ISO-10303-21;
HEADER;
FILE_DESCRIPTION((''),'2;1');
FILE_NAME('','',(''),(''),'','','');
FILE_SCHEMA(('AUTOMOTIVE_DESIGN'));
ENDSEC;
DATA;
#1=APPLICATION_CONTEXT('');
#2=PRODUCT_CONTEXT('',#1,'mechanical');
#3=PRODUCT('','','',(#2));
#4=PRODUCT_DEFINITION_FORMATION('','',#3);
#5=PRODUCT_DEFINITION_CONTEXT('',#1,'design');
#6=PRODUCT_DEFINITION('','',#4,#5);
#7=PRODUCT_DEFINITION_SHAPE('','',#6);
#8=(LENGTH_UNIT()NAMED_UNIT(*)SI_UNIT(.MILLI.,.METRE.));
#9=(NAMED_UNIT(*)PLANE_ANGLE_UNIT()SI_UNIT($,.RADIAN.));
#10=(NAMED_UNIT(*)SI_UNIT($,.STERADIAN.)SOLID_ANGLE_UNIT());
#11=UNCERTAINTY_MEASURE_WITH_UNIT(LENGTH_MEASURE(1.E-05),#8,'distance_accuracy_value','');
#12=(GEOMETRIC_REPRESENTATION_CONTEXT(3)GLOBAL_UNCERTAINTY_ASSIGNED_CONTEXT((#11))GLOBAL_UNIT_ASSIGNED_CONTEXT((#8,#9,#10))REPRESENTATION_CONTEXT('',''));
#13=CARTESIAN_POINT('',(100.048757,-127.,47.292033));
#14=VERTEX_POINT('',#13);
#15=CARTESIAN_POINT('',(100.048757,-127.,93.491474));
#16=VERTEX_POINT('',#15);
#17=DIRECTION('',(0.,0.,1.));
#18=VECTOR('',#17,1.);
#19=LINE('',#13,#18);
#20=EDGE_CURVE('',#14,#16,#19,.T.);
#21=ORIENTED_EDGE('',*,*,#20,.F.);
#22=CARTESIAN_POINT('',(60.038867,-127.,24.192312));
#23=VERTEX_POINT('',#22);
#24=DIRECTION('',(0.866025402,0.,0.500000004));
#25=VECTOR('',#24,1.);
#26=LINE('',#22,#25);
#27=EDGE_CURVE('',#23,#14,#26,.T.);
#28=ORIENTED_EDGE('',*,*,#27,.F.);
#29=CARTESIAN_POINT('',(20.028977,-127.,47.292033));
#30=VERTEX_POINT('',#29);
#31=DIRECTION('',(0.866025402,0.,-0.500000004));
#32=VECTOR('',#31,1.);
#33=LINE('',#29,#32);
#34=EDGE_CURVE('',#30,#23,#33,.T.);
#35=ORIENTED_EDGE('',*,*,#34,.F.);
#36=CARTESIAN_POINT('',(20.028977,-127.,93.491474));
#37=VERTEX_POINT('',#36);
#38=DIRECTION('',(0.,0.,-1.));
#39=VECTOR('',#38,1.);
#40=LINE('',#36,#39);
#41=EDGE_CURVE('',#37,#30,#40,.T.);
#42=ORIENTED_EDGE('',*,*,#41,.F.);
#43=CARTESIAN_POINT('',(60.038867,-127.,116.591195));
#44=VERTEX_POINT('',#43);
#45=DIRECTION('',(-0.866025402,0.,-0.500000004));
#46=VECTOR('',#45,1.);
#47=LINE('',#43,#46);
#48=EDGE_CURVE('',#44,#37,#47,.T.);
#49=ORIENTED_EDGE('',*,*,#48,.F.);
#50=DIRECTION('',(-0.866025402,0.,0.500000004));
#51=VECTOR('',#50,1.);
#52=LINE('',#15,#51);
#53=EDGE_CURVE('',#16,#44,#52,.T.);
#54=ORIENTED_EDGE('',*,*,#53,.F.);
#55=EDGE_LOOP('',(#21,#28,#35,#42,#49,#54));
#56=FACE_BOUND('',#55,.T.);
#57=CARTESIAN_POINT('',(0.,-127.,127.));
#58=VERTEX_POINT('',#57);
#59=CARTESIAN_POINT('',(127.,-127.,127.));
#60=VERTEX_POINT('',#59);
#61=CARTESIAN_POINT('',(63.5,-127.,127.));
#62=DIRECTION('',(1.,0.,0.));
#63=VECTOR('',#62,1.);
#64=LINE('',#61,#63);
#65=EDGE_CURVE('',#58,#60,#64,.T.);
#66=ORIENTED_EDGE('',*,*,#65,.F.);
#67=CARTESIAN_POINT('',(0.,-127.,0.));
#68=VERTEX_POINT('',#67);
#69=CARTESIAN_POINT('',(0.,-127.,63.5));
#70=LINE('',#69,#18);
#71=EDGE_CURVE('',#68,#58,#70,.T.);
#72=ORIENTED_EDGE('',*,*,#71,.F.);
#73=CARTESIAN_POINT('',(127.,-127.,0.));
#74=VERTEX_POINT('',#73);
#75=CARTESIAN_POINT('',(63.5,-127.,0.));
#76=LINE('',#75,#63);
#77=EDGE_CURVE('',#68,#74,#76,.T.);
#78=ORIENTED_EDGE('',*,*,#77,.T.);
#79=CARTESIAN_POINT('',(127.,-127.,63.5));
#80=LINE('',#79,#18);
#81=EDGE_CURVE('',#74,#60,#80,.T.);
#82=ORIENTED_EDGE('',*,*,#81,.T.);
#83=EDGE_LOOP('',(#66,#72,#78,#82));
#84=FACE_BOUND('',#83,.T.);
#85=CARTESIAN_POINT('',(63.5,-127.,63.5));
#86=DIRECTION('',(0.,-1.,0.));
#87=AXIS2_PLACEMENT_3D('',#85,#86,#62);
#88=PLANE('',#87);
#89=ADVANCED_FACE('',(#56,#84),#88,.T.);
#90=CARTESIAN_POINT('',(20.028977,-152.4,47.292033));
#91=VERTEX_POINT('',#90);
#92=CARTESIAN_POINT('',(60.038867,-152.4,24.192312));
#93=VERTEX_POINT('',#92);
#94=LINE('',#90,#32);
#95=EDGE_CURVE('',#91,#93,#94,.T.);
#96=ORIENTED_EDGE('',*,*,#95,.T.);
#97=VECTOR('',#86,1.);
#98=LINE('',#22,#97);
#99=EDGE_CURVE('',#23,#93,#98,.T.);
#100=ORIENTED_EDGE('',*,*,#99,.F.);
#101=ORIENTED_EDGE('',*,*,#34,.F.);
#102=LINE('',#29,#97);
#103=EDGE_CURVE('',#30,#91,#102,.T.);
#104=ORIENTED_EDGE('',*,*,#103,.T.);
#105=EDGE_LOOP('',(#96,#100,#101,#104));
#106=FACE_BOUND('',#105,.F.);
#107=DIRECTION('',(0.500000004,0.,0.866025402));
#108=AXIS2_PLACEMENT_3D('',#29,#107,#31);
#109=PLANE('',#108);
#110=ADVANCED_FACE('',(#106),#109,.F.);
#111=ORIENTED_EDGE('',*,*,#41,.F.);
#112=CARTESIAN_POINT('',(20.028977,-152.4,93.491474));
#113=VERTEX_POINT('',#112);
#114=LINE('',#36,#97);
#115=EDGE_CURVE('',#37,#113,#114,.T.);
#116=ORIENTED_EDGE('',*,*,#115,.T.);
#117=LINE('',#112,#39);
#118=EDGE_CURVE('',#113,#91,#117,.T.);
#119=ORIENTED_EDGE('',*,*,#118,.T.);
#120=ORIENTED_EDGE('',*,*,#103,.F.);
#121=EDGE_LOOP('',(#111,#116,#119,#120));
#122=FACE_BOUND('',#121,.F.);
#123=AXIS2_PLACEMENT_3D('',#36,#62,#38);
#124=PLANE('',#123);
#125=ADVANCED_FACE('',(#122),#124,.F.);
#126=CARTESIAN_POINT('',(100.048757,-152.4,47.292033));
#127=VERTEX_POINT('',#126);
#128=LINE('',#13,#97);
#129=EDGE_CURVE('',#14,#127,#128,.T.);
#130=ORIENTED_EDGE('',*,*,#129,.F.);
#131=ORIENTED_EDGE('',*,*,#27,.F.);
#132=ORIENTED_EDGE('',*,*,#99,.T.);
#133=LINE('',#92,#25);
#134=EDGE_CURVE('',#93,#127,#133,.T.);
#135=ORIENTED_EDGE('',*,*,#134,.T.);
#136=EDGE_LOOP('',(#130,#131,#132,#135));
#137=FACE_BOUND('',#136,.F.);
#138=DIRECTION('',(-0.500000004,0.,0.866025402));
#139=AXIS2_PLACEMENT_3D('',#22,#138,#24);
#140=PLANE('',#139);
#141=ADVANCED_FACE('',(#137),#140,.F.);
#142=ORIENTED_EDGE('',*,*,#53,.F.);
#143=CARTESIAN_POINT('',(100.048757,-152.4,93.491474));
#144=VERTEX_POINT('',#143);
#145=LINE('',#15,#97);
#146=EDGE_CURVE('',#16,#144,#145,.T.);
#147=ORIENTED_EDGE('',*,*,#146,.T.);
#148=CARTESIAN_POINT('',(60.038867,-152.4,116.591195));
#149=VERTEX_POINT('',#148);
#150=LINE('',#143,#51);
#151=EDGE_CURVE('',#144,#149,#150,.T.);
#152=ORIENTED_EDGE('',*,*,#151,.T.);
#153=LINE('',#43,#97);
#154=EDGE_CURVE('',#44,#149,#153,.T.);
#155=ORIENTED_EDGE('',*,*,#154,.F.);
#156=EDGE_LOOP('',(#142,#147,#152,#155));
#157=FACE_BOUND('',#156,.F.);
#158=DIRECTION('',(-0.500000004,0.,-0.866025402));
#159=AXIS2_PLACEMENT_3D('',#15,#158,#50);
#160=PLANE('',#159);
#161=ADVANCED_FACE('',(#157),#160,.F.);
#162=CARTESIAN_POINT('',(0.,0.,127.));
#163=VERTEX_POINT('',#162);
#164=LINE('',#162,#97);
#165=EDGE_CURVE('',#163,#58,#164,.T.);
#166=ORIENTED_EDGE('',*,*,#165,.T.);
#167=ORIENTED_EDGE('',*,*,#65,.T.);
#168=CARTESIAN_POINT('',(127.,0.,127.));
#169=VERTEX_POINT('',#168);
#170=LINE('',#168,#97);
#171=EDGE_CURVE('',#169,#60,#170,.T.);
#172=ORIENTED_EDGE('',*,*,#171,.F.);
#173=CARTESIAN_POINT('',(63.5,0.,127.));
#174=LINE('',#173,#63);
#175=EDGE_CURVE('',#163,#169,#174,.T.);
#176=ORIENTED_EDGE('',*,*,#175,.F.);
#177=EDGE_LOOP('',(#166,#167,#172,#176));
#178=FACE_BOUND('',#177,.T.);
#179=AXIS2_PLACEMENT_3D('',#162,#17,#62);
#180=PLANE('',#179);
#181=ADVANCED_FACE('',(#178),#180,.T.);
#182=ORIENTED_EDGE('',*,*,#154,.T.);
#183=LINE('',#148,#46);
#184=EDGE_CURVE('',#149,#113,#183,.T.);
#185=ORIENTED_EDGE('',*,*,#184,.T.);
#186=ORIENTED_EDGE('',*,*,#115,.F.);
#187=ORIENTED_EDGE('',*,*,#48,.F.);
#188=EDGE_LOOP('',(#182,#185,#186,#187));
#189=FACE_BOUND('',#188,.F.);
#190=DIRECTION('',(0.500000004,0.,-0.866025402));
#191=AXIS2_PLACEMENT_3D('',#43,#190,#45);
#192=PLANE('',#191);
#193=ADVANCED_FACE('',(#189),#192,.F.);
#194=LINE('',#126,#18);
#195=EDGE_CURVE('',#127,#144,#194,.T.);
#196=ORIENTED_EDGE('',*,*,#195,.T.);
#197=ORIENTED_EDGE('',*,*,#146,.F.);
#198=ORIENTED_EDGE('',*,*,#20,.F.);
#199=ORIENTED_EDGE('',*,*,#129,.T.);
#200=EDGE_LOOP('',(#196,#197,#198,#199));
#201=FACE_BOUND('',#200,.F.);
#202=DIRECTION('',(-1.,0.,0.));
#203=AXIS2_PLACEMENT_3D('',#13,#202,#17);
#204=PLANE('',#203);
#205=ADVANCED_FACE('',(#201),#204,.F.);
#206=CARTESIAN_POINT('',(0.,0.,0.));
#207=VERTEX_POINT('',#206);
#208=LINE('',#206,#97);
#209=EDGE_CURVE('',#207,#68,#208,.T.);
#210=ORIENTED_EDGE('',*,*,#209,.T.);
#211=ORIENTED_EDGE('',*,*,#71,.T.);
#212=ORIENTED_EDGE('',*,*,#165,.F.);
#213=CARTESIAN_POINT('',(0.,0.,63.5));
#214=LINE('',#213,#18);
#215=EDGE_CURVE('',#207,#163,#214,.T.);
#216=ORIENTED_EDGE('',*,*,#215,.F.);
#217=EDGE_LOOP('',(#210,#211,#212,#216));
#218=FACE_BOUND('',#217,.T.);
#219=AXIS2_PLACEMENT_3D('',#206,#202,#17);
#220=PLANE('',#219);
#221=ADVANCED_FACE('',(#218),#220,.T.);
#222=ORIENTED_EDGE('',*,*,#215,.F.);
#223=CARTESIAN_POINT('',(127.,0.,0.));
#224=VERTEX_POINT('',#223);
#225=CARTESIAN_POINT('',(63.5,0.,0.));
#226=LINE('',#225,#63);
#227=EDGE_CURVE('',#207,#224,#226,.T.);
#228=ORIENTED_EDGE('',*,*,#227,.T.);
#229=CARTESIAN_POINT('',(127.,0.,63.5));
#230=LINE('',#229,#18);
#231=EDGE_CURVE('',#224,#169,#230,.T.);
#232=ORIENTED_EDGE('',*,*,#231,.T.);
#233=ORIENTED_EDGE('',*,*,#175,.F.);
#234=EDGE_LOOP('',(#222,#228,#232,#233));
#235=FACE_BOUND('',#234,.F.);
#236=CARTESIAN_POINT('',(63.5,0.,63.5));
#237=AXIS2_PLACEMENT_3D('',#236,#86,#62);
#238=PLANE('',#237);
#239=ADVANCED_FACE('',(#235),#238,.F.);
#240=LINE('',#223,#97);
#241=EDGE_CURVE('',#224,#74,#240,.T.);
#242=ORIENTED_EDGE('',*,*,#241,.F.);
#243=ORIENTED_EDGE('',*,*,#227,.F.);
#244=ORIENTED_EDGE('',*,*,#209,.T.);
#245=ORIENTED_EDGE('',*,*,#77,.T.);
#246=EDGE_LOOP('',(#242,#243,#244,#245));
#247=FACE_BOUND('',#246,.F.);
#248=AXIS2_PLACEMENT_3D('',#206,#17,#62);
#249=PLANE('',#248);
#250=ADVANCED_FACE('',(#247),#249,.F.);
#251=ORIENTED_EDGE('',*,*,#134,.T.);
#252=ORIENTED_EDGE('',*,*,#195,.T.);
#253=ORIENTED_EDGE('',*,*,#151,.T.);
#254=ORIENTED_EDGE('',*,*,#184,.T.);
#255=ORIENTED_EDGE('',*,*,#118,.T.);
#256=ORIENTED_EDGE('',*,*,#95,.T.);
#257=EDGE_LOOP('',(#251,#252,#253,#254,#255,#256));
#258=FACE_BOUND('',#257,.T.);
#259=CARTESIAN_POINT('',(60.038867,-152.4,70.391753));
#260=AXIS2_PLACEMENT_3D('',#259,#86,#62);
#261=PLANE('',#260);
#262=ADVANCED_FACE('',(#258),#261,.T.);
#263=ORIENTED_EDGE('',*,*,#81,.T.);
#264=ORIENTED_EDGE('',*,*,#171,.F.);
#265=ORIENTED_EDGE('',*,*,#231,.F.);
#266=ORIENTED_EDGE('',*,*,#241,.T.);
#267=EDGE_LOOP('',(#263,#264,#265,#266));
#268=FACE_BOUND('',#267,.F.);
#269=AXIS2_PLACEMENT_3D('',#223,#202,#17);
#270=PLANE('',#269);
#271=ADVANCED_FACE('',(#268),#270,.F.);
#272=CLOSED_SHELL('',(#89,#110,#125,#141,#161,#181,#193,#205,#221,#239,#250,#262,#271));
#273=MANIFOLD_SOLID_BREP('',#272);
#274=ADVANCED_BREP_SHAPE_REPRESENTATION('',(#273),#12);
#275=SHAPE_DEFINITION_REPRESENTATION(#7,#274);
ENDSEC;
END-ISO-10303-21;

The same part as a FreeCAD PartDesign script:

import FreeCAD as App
import Part
import Sketcher

V = App.Vector
Q = App.Units.Quantity

doc = App.newDocument("Part")
body = doc.addObject("PartDesign::Body", "Body")

# Sketch on XZ plane
sketch1 = body.newObject("Sketcher::SketchObject", "Sketch")
sketch1.AttachmentSupport = (doc.getObject("XZ_Plane"), [""])
sketch1.MapMode = "FlatFace"
sketch1.addGeometry([
    Part.LineSegment(V(0, 127, 0), V(0, 0, 0)),
    Part.LineSegment(V(0, 0, 0), V(127, 0, 0)),
    Part.LineSegment(V(127, 0, 0), V(127, 127, 0)),
    Part.LineSegment(V(127, 127, 0), V(0, 127, 0)),
], False)
sketch1.addConstraint([
    Sketcher.Constraint("Coincident", 0, 2, 1, 1),
    Sketcher.Constraint("Coincident", 1, 2, 2, 1),
    Sketcher.Constraint("Coincident", 2, 2, 3, 1),
    Sketcher.Constraint("Coincident", 3, 2, 0, 1),
    Sketcher.Constraint("Vertical", 0),
    Sketcher.Constraint("Horizontal", 1),
    Sketcher.Constraint("Vertical", 2),
    Sketcher.Constraint("Horizontal", 3),
    Sketcher.Constraint("Coincident", 0, 2, -1, 1),
    Sketcher.Constraint("Equal", 3, 0),
    Sketcher.Constraint("DistanceX", 1, 1, 1, 2, Q("5 in")),
])
pad1 = body.newObject("PartDesign::Pad", "Pad")
pad1.Profile = sketch1
pad1.Length = Q("5 in")

# Sketch on XZ plane
sketch2 = body.newObject("Sketcher::SketchObject", "Sketch001")
sketch2.AttachmentSupport = (doc.getObject("XZ_Plane"), [""])
sketch2.MapMode = "FlatFace"
sketch2.AttachmentOffset = App.Placement(V(0, 0, 5 * 25.4), App.Rotation())
sketch2.addGeometry([
    Part.LineSegment(V(60.038867, 24.192312, 0), V(100.048757, 47.292033, 0)),  # 0
    Part.LineSegment(V(100.048757, 47.292033, 0), V(100.048757, 93.491474, 0)),  # 1
    Part.LineSegment(V(100.048757, 93.491474, 0), V(60.038867, 116.591195, 0)),  # 2
    Part.LineSegment(V(60.038867, 116.591195, 0), V(20.028977, 93.491474, 0)),  # 3
    Part.LineSegment(V(20.028977, 93.491474, 0), V(20.028977, 47.292033, 0)),  # 4
    Part.LineSegment(V(20.028977, 47.292033, 0), V(60.038867, 24.192312, 0)),  # 5
], False)
sketch2.addConstraint([
    Sketcher.Constraint("Coincident", 0, 2, 1, 1),
    Sketcher.Constraint("Coincident", 1, 2, 2, 1),
    Sketcher.Constraint("Coincident", 2, 2, 3, 1),
    Sketcher.Constraint("Coincident", 3, 2, 4, 1),
    Sketcher.Constraint("Coincident", 4, 2, 5, 1),
    Sketcher.Constraint("Coincident", 5, 2, 0, 1),
    Sketcher.Constraint("Vertical", 1),
    Sketcher.Constraint("Vertical", 4),
    Sketcher.Constraint("Parallel", 0, 3),
    Sketcher.Constraint("Parallel", 2, 5),
    Sketcher.Constraint("Horizontal", 1, 2, 3, 2),
    Sketcher.Constraint("Horizontal", 0, 2, 4, 2),
    Sketcher.Constraint("Vertical", 2, 2, 5, 2),
    Sketcher.Constraint("Angle", 0, Q("30 deg")),
    Sketcher.Constraint("DistanceY", 1, 1, 1, 2, Q("46.199441 mm")),
    Sketcher.Constraint("Distance", 0, Q("46.199442 mm")),
    Sketcher.Constraint("DistanceX", -1, 1, 0, 2, Q("100.048757 mm")),
    Sketcher.Constraint("DistanceY", -1, 1, 0, 2, Q("47.292033 mm")),
])
pad2 = body.newObject("PartDesign::Pad", "Pad001")
pad2.Profile = sketch2
pad2.Length = Q("1 in")

doc.recompute()
